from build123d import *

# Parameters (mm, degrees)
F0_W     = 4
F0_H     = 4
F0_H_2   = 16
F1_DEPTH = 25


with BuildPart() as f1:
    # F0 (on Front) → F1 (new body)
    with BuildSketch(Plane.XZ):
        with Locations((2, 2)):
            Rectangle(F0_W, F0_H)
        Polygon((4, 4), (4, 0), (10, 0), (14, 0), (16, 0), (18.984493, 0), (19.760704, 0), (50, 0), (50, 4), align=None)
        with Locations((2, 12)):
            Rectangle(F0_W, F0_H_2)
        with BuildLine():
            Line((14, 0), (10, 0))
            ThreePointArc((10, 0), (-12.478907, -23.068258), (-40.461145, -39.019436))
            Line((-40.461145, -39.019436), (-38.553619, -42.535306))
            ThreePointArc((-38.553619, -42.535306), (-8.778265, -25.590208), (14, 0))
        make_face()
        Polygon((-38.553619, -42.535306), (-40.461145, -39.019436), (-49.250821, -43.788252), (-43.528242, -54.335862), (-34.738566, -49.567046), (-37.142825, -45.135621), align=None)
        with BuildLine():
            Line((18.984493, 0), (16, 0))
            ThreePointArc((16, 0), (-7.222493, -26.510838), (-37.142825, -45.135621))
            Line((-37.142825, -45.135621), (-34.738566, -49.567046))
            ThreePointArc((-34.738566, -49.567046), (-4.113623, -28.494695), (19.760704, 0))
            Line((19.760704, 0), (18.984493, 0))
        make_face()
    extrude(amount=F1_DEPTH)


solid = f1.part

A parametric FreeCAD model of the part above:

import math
import FreeCAD as App
import Part
import Sketcher

V = App.Vector
Q = App.Units.Quantity

doc = App.newDocument("Part")
body = doc.addObject("PartDesign::Body", "Body")

sketch1 = doc.addObject("Sketcher::SketchObject", "Sketch")
body.addObject(sketch1)
sketch1.AttachmentSupport = (doc.XZ_Plane, [""])
sketch1.MapMode = "FlatFace"
sketch1.addGeometry(Part.LineSegment(V(0, 0, 0), V(10, 0, 0)), False)
sketch1.addGeometry(Part.ArcOfCircle(Part.Circle(V(-83, 68.2, 0), V(0, 0, 1), 115.3), math.radians(-68), math.radians(-36)), False)
sketch1.addGeometry(Part.LineSegment(V(-40.5, -39, 0), V(-49.3, -43.8, 0)), False)
sketch1.addGeometry(Part.LineSegment(V(-49.3, -43.8, 0), V(-43.5, -54.3, 0)), False)
sketch1.addGeometry(Part.LineSegment(V(-43.5, -54.3, 0), V(-34.7, -49.6, 0)), False)
sketch1.addGeometry(Part.ArcOfCircle(Part.Circle(V(-96.8, 73.4, 0), V(0, 0, 1), 137.7), math.radians(-63), math.radians(-32)), False)
sketch1.addGeometry(Part.LineSegment(V(19.8, 0, 0), V(50, 0, 0)), False)
sketch1.addGeometry(Part.LineSegment(V(50, 0, 0), V(50, 4, 0)), False)
sketch1.addGeometry(Part.LineSegment(V(50, 4, 0), V(4, 4, 0)), False)
sketch1.addGeometry(Part.LineSegment(V(4, 4, 0), V(4, 20, 0)), False)
sketch1.addGeometry(Part.LineSegment(V(4, 20, 0), V(0, 20, 0)), False)
sketch1.addGeometry(Part.LineSegment(V(0, 20, 0), V(0, 0, 0)), False)
sketch1.addGeometry(Part.LineSegment(V(-37.1, -45.1, 0), V(-38.6, -42.5, 0)), False)
sketch1.addGeometry(Part.ArcOfCircle(Part.Circle(V(-75.2, 56.4, 0), V(0, 0, 1), 105.5), math.radians(-70), math.radians(-32)), False)
sketch1.addGeometry(Part.LineSegment(V(14, 0, 0), V(16, 0, 0)), False)
sketch1.addGeometry(Part.ArcOfCircle(Part.Circle(V(-84.9, 65, 0), V(0, 0, 1), 120.1), math.radians(-67), math.radians(-33)), False)
sketch1.addConstraint(Sketcher.Constraint("Coincident", 0, 2, 1, 2))
sketch1.addConstraint(Sketcher.Constraint("Coincident", 1, 1, 2, 1))
sketch1.addConstraint(Sketcher.Constraint("Coincident", 2, 2, 3, 1))
sketch1.addConstraint(Sketcher.Constraint("Coincident", 3, 2, 4, 1))
sketch1.addConstraint(Sketcher.Constraint("Coincident", 4, 2, 5, 1))
sketch1.addConstraint(Sketcher.Constraint("Coincident", 5, 2, 6, 1))
sketch1.addConstraint(Sketcher.Constraint("Coincident", 6, 2, 7, 1))
sketch1.addConstraint(Sketcher.Constraint("Coincident", 7, 2, 8, 1))
sketch1.addConstraint(Sketcher.Constraint("Coincident", 8, 2, 9, 1))
sketch1.addConstraint(Sketcher.Constraint("Coincident", 9, 2, 10, 1))
sketch1.addConstraint(Sketcher.Constraint("Coincident", 10, 2, 11, 1))
sketch1.addConstraint(Sketcher.Constraint("Coincident", 11, 2, 0, 1))
sketch1.addConstraint(Sketcher.Constraint("Coincident", 12, 2, 13, 1))
sketch1.addConstraint(Sketcher.Constraint("Coincident", 13, 2, 14, 1))
sketch1.addConstraint(Sketcher.Constraint("Coincident", 14, 2, 15, 2))
sketch1.addConstraint(Sketcher.Constraint("Coincident", 15, 1, 12, 1))
sketch1.addConstraint(Sketcher.Constraint("Horizontal", 0))
sketch1.addConstraint(Sketcher.Constraint("Horizontal", 6))
sketch1.addConstraint(Sketcher.Constraint("Vertical", 7))
sketch1.addConstraint(Sketcher.Constraint("Horizontal", 8))
sketch1.addConstraint(Sketcher.Constraint("Vertical", 9))
sketch1.addConstraint(Sketcher.Constraint("Horizontal", 10))
sketch1.addConstraint(Sketcher.Constraint("Vertical", 11))
sketch1.addConstraint(Sketcher.Constraint("Horizontal", 14))
sketch1.addConstraint(Sketcher.Constraint("Coincident", 11, 2, -1, 1))
sketch1.addConstraint(Sketcher.Constraint("PointOnObject", 5, 2, -1))
sketch1.addConstraint(Sketcher.Constraint("PointOnObject", 13, 2, -1))
sketch1.addConstraint(Sketcher.Constraint("Perpendicular", 2, 3))
sketch1.addConstraint(Sketcher.Constraint("Perpendicular", 3, 4))
sketch1.addConstraint(Sketcher.Constraint("Perpendicular", 4, 12))
sketch1.addConstraint(Sketcher.Constraint("Equal", 10, 7))
sketch1.addConstraint(Sketcher.Constraint("Equal", 2, 4))
sketch1.addConstraint(Sketcher.Constraint("DistanceX", 0, 1, 0, 2, Q("10 mm")))
sketch1.addConstraint(Sketcher.Constraint("DistanceX", 8, 2, 8, 1, Q("46 mm")))
sketch1.addConstraint(Sketcher.Constraint("DistanceX", 10, 2, 10, 1, Q("4 mm")))
sketch1.addConstraint(Sketcher.Constraint("DistanceX", 14, 1, 14, 2, Q("2 mm")))
sketch1.addConstraint(Sketcher.Constraint("DistanceY", 9, 1, 9, 2, Q("16 mm")))
sketch1.addConstraint(Sketcher.Constraint("Distance", 2, Q("10.000001 mm")))
sketch1.addConstraint(Sketcher.Constraint("Distance", 3, Q("11.999999 mm")))
sketch1.addConstraint(Sketcher.Constraint("DistanceX", -1, 1, 13, 2, Q("14 mm")))
sketch1.addConstraint(Sketcher.Constraint("Radius", 1, Q("115.314838 mm")))
sketch1.addConstraint(Sketcher.Constraint("Radius", 15, Q("120.05063 mm")))
sketch1.addConstraint(Sketcher.Constraint("Radius", 5, Q("137.737947 mm")))
sketch1.addConstraint(Sketcher.Constraint("Radius", 13, Q("105.531034 mm")))
sketch1.addConstraint(Sketcher.Constraint("DistanceX", 13, 3, 4, 2, Q("40.432 mm")))
sketch1.addConstraint(Sketcher.Constraint("DistanceX", 15, 3, 2, 2, Q("35.686501 mm")))
sketch1.addConstraint(Sketcher.Constraint("DistanceX", 6, 1, 6, 2, Q("30.239296 mm")))
sketch1.addConstraint(Sketcher.Constraint("DistanceX", 1, 3, -1, 1, Q("83.018132 mm")))
sketch1.addConstraint(Sketcher.Constraint("DistanceY", -1, 1, 5, 3, Q("73.402418 mm")))
sketch1.addConstraint(Sketcher.Constraint("DistanceY", -1, 1, 13, 3, Q("56.439429 mm")))
sketch1.addConstraint(Sketcher.Constraint("DistanceX", 12, 2, -1, 1, Q("38.553619 mm")))
pad1 = doc.addObject("PartDesign::Pad", "Pad")
body.addObject(pad1)
pad1.Profile = sketch1
pad1.Length = 25

doc.recompute()
